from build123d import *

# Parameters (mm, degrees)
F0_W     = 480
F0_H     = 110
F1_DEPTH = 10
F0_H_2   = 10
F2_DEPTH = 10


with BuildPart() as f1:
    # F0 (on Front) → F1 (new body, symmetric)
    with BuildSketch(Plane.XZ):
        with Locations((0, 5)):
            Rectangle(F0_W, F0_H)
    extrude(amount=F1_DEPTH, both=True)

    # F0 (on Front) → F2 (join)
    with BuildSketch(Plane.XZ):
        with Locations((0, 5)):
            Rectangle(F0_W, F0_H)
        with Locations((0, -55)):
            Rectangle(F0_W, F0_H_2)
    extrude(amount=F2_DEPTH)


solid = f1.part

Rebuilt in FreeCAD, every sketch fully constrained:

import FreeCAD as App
import Part
import Sketcher
Q = App.Units.Quantity


def add_polygon(sketch, points):
    """Adds a closed chain of lines whose ends are joined by coincident constraints."""
    first, n = sketch.GeometryCount, len(points)
    for a, b in zip(points, points[1:] + points[:1]):
        sketch.addGeometry(Part.LineSegment(App.Vector(*a, 0), App.Vector(*b, 0)), False)
    for i in range(n):
        sketch.addConstraint(Sketcher.Constraint("Coincident", first + i, 2, first + (i + 1) % n, 1))

doc = App.newDocument("Part")
body = doc.addObject("PartDesign::Body", "Body")

sketch1 = body.newObject("Sketcher::SketchObject", "Sketch")
sketch1.AttachmentSupport = (doc.getObject("XZ_Plane"), [""])
sketch1.MapMode = "FlatFace"
add_polygon(sketch1, [(-240, 60), (-240, -50), (240, -50), (240, 60)])
sketch1.addConstraint([
    Sketcher.Constraint("Vertical", 0),
    Sketcher.Constraint("Horizontal", 1),
    Sketcher.Constraint("Vertical", 2),
    Sketcher.Constraint("Horizontal", 3),
    Sketcher.Constraint("DistanceX", 1, 1, 1, 2, Q("480 mm")),
    Sketcher.Constraint("DistanceY", 0, 2, 0, 1, Q("110 mm")),
    Sketcher.Constraint("DistanceX", 0, 2, -1, 1, Q("240 mm")),
    Sketcher.Constraint("DistanceY", 0, 2, -1, 1, Q("50 mm")),
])
pad1 = body.newObject("PartDesign::Pad", "Pad")
pad1.Profile = sketch1
pad1.Length = 20
pad1.Midplane = True

sketch2 = body.newObject("Sketcher::SketchObject", "Sketch001")
sketch2.AttachmentSupport = (doc.getObject("XZ_Plane"), [""])
sketch2.MapMode = "FlatFace"
add_polygon(sketch2, [(-240, 60), (-240, -60), (240, -60), (240, 60)])
sketch2.addConstraint([
    Sketcher.Constraint("Vertical", 0),
    Sketcher.Constraint("Horizontal", 1),
    Sketcher.Constraint("Vertical", 2),
    Sketcher.Constraint("Horizontal", 3),
    Sketcher.Constraint("Symmetric", 0, 2, 2, 2, -1, 1),
    Sketcher.Constraint("DistanceX", 1, 1, 1, 2, Q("480 mm")),
    Sketcher.Constraint("DistanceY", 0, 2, 0, 1, Q("120 mm")),
])
pad2 = body.newObject("PartDesign::Pad", "Pad001")
pad2.Profile = sketch2
pad2.Length = 10

doc.recompute()
